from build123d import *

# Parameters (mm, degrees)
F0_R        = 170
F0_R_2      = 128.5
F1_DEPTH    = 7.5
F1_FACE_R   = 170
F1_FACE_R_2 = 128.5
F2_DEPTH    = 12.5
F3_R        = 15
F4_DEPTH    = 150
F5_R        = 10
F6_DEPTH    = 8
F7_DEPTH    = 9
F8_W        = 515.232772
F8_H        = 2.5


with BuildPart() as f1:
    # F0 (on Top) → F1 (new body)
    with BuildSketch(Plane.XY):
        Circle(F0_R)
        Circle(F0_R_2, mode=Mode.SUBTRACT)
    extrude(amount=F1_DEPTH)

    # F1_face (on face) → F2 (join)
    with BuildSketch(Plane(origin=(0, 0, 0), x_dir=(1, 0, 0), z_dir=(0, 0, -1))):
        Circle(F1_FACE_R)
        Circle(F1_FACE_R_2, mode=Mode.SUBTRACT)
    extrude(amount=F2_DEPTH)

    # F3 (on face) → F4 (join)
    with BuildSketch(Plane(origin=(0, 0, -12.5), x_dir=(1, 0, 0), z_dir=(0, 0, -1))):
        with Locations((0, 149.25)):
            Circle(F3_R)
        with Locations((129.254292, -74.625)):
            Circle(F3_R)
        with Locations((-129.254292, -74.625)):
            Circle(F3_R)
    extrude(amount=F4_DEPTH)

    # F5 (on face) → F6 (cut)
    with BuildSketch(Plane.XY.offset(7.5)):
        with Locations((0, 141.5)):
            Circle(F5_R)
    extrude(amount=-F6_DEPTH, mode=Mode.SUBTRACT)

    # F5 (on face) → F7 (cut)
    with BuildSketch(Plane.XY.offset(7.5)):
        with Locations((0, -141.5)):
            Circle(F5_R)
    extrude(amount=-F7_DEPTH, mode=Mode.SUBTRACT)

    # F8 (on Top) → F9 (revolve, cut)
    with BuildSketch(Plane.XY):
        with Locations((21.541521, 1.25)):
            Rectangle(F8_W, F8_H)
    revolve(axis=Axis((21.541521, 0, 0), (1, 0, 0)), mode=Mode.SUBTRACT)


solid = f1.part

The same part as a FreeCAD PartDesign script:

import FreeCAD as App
import Part
import Sketcher
Q = App.Units.Quantity

doc = App.newDocument("Part")
params = doc.addObject("Spreadsheet::Sheet", "Params")
for row, (alias, value) in enumerate([
    ("sketch1_diameter", "340 mm"),
    ("sketch1_diameter2", "257 mm"),
    ("pad1_length", "7.5 mm"),
    ("sketch2_diameter", "340 mm"),
    ("sketch2_diameter2", "257 mm"),
    ("pad2_length", "12.5 mm"),
    ("sketch3_diameter", "30 mm"),
    ("pad3_length", "150 mm"),
    ("sketch4_diameter", "20 mm"),
    ("pocket1_length", "8 mm"),
    ("sketch5_diameter", "20 mm"),
    ("pocket2_length", "9 mm"),
    ("sketch6_height", "2.5 mm"),
    ("groove_angle", "360 deg"),
], start=1):
    params.set(f"A{row}", alias)
    params.set(f"B{row}", "=" + value)
    params.setAlias(f"B{row}", alias)

body = doc.addObject("PartDesign::Body", "Body")

# Sketch on XY plane
sketch1 = body.newObject("Sketcher::SketchObject", "Sketch")
sketch1.AttachmentSupport = (doc.getObject("XY_Plane"), [""])
sketch1.MapMode = "FlatFace"
sketch1.addGeometry([
    Part.Circle(App.Vector(0, 0, 0), App.Vector(0, 0, 1), 170),
    Part.Circle(App.Vector(0, 0, 0), App.Vector(0, 0, 1), 128),
], False)
sketch1.addConstraint([
    Sketcher.Constraint("Coincident", 0, 3, -1, 1),
    Sketcher.Constraint("Coincident", 1, 3, -1, 1),
    Sketcher.Constraint("Diameter", 0, Q("340 mm")),
    Sketcher.Constraint("Diameter", 1, Q("257 mm")),
])
sketch1.setExpression("Constraints[2]", "Params.sketch1_diameter")
sketch1.setExpression("Constraints[3]", "Params.sketch1_diameter2")
pad1 = body.newObject("PartDesign::Pad", "Pad")
pad1.Profile = sketch1
pad1.setExpression("Length", "Params.pad1_length")

# Sketch on XY plane
sketch2 = body.newObject("Sketcher::SketchObject", "Sketch001")
sketch2.AttachmentSupport = (doc.getObject("XY_Plane"), [""])
sketch2.MapMode = "FlatFace"
sketch2.addGeometry([
    Part.Circle(App.Vector(0, 0, 0), App.Vector(0, 0, 1), 170),
    Part.Circle(App.Vector(0, 0, 0), App.Vector(0, 0, 1), 128),
], False)
sketch2.addConstraint([
    Sketcher.Constraint("Coincident", 0, 3, -1, 1),
    Sketcher.Constraint("Coincident", 1, 3, -1, 1),
    Sketcher.Constraint("Diameter", 0, Q("340 mm")),
    Sketcher.Constraint("Diameter", 1, Q("257 mm")),
])
sketch2.setExpression("Constraints[2]", "Params.sketch2_diameter")
sketch2.setExpression("Constraints[3]", "Params.sketch2_diameter2")
pad2 = body.newObject("PartDesign::Pad", "Pad001")
pad2.Profile = sketch2
pad2.setExpression("Length", "Params.pad2_length")
pad2.Reversed = True

# Sketch on XY plane
sketch3 = body.newObject("Sketcher::SketchObject", "Sketch002")
sketch3.AttachmentSupport = (doc.getObject("XY_Plane"), [""])
sketch3.MapMode = "FlatFace"
sketch3.AttachmentOffset = App.Placement(App.Vector(0, 0, -12.5), App.Rotation())
sketch3.addGeometry([
    Part.Circle(App.Vector(0, -149, 0), App.Vector(0, 0, 1), 15),
    Part.Circle(App.Vector(129, 75, 0), App.Vector(0, 0, 1), 15),
    Part.Circle(App.Vector(-129, 75, 0), App.Vector(0, 0, 1), 15),
], False)
sketch3.addConstraint([
    Sketcher.Constraint("Equal", 0, 1),
    Sketcher.Constraint("Equal", 1, 2),
    Sketcher.Constraint("Symmetric", 1, 3, 2, 3, -2),
    Sketcher.Constraint("PointOnObject", 0, 3, -2),
    Sketcher.Constraint("Diameter", 0, Q("30 mm")),
    Sketcher.Constraint("DistanceY", 0, 3, -1, 1, Q("149.25 mm")),
    Sketcher.Constraint("DistanceY", -1, 1, 1, 3, Q("74.625 mm")),
    Sketcher.Constraint("DistanceX", -1, 1, 1, 3, Q("129.254292 mm")),
])
sketch3.setExpression("Constraints[4]", "Params.sketch3_diameter")
pad3 = body.newObject("PartDesign::Pad", "Pad002")
pad3.Profile = sketch3
pad3.setExpression("Length", "Params.pad3_length")
pad3.Reversed = True

# Sketch on XY plane
sketch4 = body.newObject("Sketcher::SketchObject", "Sketch003")
sketch4.AttachmentSupport = (doc.getObject("XY_Plane"), [""])
sketch4.MapMode = "FlatFace"
sketch4.AttachmentOffset = App.Placement(App.Vector(0, 0, 7.5), App.Rotation())
sketch4.addGeometry(Part.Circle(App.Vector(0, 142, 0), App.Vector(0, 0, 1), 10), False)
sketch4.addConstraint([
    Sketcher.Constraint("PointOnObject", 0, 3, -2),
    Sketcher.Constraint("Diameter", 0, Q("20 mm")),
    Sketcher.Constraint("DistanceY", -1, 1, 0, 3, Q("141.5 mm")),
])
sketch4.setExpression("Constraints[1]", "Params.sketch4_diameter")
pocket1 = body.newObject("PartDesign::Pocket", "Pocket")
pocket1.Profile = sketch4
pocket1.setExpression("Length", "Params.pocket1_length")

# Sketch on XY plane
sketch5 = body.newObject("Sketcher::SketchObject", "Sketch004")
sketch5.AttachmentSupport = (doc.getObject("XY_Plane"), [""])
sketch5.MapMode = "FlatFace"
sketch5.AttachmentOffset = App.Placement(App.Vector(0, 0, 7.5), App.Rotation())
sketch5.addGeometry(Part.Circle(App.Vector(0, -142, 0), App.Vector(0, 0, 1), 10), False)
sketch5.addConstraint([
    Sketcher.Constraint("PointOnObject", 0, 3, -2),
    Sketcher.Constraint("Diameter", 0, Q("20 mm")),
    Sketcher.Constraint("DistanceY", 0, 3, -1, 1, Q("141.5 mm")),
])
sketch5.setExpression("Constraints[1]", "Params.sketch5_diameter")
pocket2 = body.newObject("PartDesign::Pocket", "Pocket001")
pocket2.Profile = sketch5
pocket2.setExpression("Length", "Params.pocket2_length")

# Sketch on XY plane
sketch6 = body.newObject("Sketcher::SketchObject", "Sketch005")
sketch6.AttachmentSupport = (doc.getObject("XY_Plane"), [""])
sketch6.MapMode = "FlatFace"
sketch6.addGeometry([
    Part.LineSegment(App.Vector(-236.1, 2.5, 0), App.Vector(-236.1, 0, 0)),
    Part.LineSegment(App.Vector(-236.1, 0, 0), App.Vector(279.2, 0, 0)),
    Part.LineSegment(App.Vector(279.2, 0, 0), App.Vector(279.2, 2.5, 0)),
    Part.LineSegment(App.Vector(279.2, 2.5, 0), App.Vector(-236.1, 2.5, 0)),
], False)
sketch6.addConstraint([
    Sketcher.Constraint("Coincident", 0, 2, 1, 1),
    Sketcher.Constraint("Coincident", 1, 2, 2, 1),
    Sketcher.Constraint("Coincident", 2, 2, 3, 1),
    Sketcher.Constraint("Coincident", 3, 2, 0, 1),
    Sketcher.Constraint("Vertical", 0),
    Sketcher.Constraint("Horizontal", 1),
    Sketcher.Constraint("Vertical", 2),
    Sketcher.Constraint("Horizontal", 3),
    Sketcher.Constraint("PointOnObject", 0, 2, -1),
    Sketcher.Constraint("DistanceY", 0, 2, 0, 1, Q("2.5 mm")),
    Sketcher.Constraint("DistanceX", 1, 1, 1, 2, Q("515.232772 mm")),
    Sketcher.Constraint("DistanceX", 0, 2, -1, 1, Q("236.074865 mm")),
])
sketch6.setExpression("Constraints[9]", "Params.sketch6_height")
groove = body.newObject("PartDesign::Groove", "Groove")
groove.Profile = sketch6
groove.ReferenceAxis = (sketch6, ["H_Axis"])
groove.setExpression("Angle", "Params.groove_angle")

doc.recompute()
